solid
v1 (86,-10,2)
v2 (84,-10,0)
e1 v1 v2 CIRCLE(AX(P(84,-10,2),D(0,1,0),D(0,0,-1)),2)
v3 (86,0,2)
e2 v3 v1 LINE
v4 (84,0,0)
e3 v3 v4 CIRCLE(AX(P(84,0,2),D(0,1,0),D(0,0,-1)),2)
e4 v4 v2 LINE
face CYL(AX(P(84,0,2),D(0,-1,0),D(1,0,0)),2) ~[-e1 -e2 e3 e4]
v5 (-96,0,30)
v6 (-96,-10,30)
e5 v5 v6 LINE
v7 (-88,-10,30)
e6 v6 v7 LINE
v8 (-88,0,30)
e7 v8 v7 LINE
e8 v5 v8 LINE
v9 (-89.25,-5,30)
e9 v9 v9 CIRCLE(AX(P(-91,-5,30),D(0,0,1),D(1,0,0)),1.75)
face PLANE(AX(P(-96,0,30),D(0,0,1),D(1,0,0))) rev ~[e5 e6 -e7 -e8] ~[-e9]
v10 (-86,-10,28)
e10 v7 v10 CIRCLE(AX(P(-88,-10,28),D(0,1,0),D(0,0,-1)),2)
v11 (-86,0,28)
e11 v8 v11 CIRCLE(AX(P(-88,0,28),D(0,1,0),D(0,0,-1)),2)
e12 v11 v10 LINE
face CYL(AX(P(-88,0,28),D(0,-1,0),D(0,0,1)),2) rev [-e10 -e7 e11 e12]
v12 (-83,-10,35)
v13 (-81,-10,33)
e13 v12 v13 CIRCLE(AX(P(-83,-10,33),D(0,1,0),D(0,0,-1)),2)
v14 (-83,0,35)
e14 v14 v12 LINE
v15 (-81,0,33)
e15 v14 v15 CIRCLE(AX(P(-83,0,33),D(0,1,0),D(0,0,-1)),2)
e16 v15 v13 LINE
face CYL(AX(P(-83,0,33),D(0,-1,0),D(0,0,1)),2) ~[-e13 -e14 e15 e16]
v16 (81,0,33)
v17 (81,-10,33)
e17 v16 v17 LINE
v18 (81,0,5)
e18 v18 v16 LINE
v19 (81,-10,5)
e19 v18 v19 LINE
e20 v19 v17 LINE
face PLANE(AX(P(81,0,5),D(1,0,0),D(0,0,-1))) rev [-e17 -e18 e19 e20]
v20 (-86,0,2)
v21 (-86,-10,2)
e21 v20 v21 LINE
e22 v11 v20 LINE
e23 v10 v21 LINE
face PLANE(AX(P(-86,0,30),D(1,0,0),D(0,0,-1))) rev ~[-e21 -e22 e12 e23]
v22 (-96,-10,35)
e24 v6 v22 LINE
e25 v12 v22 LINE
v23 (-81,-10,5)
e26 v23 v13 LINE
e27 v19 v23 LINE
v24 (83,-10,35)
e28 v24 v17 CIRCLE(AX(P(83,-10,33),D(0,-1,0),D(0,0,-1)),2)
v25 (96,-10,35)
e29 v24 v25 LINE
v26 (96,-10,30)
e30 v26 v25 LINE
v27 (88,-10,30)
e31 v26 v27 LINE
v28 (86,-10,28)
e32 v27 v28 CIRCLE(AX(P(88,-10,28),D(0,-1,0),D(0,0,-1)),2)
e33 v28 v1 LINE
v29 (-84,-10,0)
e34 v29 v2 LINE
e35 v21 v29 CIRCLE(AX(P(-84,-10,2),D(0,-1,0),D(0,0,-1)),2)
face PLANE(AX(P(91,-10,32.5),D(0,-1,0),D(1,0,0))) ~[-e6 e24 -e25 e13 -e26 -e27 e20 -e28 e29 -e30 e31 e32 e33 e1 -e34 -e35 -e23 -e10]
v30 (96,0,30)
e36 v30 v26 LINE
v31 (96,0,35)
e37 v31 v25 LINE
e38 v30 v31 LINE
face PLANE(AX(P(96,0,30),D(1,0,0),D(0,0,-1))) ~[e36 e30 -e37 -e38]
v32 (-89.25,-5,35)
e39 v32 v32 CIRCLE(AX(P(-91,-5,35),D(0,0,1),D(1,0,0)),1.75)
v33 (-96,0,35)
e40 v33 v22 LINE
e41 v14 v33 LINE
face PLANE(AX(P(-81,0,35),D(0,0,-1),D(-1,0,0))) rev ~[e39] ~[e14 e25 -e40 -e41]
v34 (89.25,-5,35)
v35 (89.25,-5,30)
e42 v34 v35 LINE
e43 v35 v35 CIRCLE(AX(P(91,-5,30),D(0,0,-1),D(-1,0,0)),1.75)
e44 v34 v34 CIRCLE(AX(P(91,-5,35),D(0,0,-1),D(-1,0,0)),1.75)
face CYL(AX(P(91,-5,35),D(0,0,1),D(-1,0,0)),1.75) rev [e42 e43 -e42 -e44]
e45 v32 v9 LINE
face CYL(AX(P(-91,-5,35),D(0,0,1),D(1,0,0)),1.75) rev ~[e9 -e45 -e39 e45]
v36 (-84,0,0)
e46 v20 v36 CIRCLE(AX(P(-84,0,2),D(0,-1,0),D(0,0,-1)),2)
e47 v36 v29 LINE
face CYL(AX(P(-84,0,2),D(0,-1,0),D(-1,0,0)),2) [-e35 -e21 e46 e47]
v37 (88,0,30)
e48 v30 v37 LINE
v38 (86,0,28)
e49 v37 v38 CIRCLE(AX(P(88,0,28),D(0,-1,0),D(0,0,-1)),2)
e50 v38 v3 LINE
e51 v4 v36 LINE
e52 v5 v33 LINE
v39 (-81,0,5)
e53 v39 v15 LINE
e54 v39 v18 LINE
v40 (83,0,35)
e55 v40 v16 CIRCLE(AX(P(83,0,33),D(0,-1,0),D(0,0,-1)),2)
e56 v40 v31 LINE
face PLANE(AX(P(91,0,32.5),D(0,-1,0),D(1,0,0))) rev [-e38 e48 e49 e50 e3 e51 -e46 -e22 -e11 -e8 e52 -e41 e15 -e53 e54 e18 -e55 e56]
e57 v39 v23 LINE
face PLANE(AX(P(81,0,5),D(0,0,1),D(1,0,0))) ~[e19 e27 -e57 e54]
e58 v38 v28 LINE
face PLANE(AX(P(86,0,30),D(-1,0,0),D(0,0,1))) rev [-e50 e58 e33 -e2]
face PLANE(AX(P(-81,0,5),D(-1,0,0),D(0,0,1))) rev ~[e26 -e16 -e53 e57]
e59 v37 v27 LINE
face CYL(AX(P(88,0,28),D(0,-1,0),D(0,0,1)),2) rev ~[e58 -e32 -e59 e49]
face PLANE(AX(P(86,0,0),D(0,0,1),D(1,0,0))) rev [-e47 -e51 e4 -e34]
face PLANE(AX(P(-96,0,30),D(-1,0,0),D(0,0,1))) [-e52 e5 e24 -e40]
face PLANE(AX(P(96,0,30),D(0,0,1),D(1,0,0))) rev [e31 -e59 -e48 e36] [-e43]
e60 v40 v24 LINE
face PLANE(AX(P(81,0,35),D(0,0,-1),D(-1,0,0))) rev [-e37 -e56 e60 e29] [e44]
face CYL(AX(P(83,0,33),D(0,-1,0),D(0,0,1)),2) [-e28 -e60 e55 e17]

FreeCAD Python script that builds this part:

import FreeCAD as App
import Part
import Sketcher
from FreeCAD import Vector


def edges_at(feature, points):
    """Names of the edges that pass closest to the given points."""
    edges = feature.Shape.Edges
    near = lambda p: min(range(len(edges)), key=lambda i: edges[i].distToShape(Part.Vertex(*p))[0])
    return sorted({f"Edge{near(p) + 1}" for p in points})


def add_polygon(sketch, points):
    """Adds a closed chain of lines whose ends are joined by coincident constraints."""
    first, n = sketch.GeometryCount, len(points)
    for a, b in zip(points, points[1:] + points[:1]):
        sketch.addGeometry(Part.LineSegment(App.Vector(*a, 0), App.Vector(*b, 0)), False)
    for i in range(n):
        sketch.addConstraint(Sketcher.Constraint("Coincident", first + i, 2, first + (i + 1) % n, 1))

doc = App.newDocument("Part")
params = doc.addObject("Spreadsheet::Sheet", "Params")
for row, (alias, value) in enumerate([
    ("sketch1_width", "10 mm"),
    ("sketch1_width2", "86 mm"),
    ("sketch1_width3", "81 mm"),
    ("sketch1_height", "5 mm"),
    ("sketch1_height2", "30 mm"),
    ("pad1_length", "10 mm"),
    ("sketch2_diameter", "3.5 mm"),
    ("fillet_radius", "2 mm"),
], start=1):
    params.set(f"A{row}", alias)
    params.set(f"B{row}", "=" + value)
    params.setAlias(f"B{row}", alias)

body = doc.addObject("PartDesign::Body", "Body")

# Sketch on XZ plane
sketch1 = body.newObject("Sketcher::SketchObject", "Sketch")
sketch1.AttachmentSupport = (doc.getObject("XZ_Plane"), [""])
sketch1.MapMode = "FlatFace"
add_polygon(sketch1, [(-96, 35), (-96, 30), (-86, 30), (-86, 0), (0, 0), (0, 5), (-81, 5), (-81, 35)])  # lines 0-7
sketch1.addConstraint(Sketcher.Constraint("Vertical", 0))
sketch1.addConstraint(Sketcher.Constraint("Horizontal", 1))
sketch1.addConstraint(Sketcher.Constraint("Vertical", 2))
sketch1.addConstraint(Sketcher.Constraint("Horizontal", 3))
sketch1.addConstraint(Sketcher.Constraint("Vertical", 4))
sketch1.addConstraint(Sketcher.Constraint("Horizontal", 5))
sketch1.addConstraint(Sketcher.Constraint("Vertical", 6))
sketch1.addConstraint(Sketcher.Constraint("Horizontal", 7))
sketch1.addConstraint(Sketcher.Constraint("Coincident", 3, 2, -1, 1))
sketch1.addConstraint(Sketcher.Constraint("Equal", 0, 4))
sketch1.addConstraint(Sketcher.Constraint("DistanceX", 1, 1, 1, 2, 10.0))
sketch1.addConstraint(Sketcher.Constraint("DistanceX", 3, 1, 3, 2, 86.0))
sketch1.addConstraint(Sketcher.Constraint("DistanceX", 5, 2, 5, 1, 81.0))
sketch1.addConstraint(Sketcher.Constraint("DistanceY", 0, 2, 0, 1, 5.0))
sketch1.addConstraint(Sketcher.Constraint("DistanceY", 2, 2, 2, 1, 30.0))
sketch1.setExpression("Constraints[18]", "Params.sketch1_width")
sketch1.setExpression("Constraints[19]", "Params.sketch1_width2")
sketch1.setExpression("Constraints[20]", "Params.sketch1_width3")
sketch1.setExpression("Constraints[21]", "Params.sketch1_height")
sketch1.setExpression("Constraints[22]", "Params.sketch1_height2")
pad1 = body.newObject("PartDesign::Pad", "Pad")
pad1.Profile = sketch1
pad1.setExpression("Length", "Params.pad1_length")

# Sketch on XY plane
sketch2 = body.newObject("Sketcher::SketchObject", "Sketch001")
sketch2.AttachmentSupport = (doc.getObject("XY_Plane"), [""])
sketch2.MapMode = "FlatFace"
sketch2.AttachmentOffset = App.Placement(Vector(0, 0, 35), App.Rotation())
sketch2.addGeometry(Part.Circle(Vector(-91, -5, 0), Vector(0, 0, 1), 1.8), False)
sketch2.addConstraint(Sketcher.Constraint("Diameter", 0, 3.5))
sketch2.addConstraint(Sketcher.Constraint("DistanceX", 0, 3, -1, 1, 91.0))
sketch2.addConstraint(Sketcher.Constraint("DistanceY", 0, 3, -1, 1, 5.0))
sketch2.setExpression("Constraints[0]", "Params.sketch2_diameter")
pocket1 = body.newObject("PartDesign::Pocket", "Pocket")
pocket1.Profile = sketch2
pocket1.Type = "ThroughAll"
doc.recompute()

fillet = body.newObject("PartDesign::Fillet", "Fillet")
fillet.Base = (pocket1, edges_at(pocket1, [(-81, -5, 35), (-86, -5, 30), (-86, -5, 0)]))
fillet.setExpression("Radius", "Params.fillet_radius")
body2 = doc.addObject("PartDesign::Body", "Body001")
doc.recompute()

body2.BaseFeature = body
doc.recompute()

mirroring = doc.addObject("Part::Mirroring", "Mirroring")
mirroring.Source = body
mirroring.Base = Vector(0, 0, 0)
mirroring.Normal = Vector(1, 0, 0)
body3 = doc.addObject("PartDesign::Body", "Body002")
body3.BaseFeature = mirroring
boolean = body2.newObject("PartDesign::Boolean", "Boolean")
boolean.Type = "Fuse"
boolean.addObjects([body3])
doc.recompute()
mirroring.Visibility = False

doc.recompute()
